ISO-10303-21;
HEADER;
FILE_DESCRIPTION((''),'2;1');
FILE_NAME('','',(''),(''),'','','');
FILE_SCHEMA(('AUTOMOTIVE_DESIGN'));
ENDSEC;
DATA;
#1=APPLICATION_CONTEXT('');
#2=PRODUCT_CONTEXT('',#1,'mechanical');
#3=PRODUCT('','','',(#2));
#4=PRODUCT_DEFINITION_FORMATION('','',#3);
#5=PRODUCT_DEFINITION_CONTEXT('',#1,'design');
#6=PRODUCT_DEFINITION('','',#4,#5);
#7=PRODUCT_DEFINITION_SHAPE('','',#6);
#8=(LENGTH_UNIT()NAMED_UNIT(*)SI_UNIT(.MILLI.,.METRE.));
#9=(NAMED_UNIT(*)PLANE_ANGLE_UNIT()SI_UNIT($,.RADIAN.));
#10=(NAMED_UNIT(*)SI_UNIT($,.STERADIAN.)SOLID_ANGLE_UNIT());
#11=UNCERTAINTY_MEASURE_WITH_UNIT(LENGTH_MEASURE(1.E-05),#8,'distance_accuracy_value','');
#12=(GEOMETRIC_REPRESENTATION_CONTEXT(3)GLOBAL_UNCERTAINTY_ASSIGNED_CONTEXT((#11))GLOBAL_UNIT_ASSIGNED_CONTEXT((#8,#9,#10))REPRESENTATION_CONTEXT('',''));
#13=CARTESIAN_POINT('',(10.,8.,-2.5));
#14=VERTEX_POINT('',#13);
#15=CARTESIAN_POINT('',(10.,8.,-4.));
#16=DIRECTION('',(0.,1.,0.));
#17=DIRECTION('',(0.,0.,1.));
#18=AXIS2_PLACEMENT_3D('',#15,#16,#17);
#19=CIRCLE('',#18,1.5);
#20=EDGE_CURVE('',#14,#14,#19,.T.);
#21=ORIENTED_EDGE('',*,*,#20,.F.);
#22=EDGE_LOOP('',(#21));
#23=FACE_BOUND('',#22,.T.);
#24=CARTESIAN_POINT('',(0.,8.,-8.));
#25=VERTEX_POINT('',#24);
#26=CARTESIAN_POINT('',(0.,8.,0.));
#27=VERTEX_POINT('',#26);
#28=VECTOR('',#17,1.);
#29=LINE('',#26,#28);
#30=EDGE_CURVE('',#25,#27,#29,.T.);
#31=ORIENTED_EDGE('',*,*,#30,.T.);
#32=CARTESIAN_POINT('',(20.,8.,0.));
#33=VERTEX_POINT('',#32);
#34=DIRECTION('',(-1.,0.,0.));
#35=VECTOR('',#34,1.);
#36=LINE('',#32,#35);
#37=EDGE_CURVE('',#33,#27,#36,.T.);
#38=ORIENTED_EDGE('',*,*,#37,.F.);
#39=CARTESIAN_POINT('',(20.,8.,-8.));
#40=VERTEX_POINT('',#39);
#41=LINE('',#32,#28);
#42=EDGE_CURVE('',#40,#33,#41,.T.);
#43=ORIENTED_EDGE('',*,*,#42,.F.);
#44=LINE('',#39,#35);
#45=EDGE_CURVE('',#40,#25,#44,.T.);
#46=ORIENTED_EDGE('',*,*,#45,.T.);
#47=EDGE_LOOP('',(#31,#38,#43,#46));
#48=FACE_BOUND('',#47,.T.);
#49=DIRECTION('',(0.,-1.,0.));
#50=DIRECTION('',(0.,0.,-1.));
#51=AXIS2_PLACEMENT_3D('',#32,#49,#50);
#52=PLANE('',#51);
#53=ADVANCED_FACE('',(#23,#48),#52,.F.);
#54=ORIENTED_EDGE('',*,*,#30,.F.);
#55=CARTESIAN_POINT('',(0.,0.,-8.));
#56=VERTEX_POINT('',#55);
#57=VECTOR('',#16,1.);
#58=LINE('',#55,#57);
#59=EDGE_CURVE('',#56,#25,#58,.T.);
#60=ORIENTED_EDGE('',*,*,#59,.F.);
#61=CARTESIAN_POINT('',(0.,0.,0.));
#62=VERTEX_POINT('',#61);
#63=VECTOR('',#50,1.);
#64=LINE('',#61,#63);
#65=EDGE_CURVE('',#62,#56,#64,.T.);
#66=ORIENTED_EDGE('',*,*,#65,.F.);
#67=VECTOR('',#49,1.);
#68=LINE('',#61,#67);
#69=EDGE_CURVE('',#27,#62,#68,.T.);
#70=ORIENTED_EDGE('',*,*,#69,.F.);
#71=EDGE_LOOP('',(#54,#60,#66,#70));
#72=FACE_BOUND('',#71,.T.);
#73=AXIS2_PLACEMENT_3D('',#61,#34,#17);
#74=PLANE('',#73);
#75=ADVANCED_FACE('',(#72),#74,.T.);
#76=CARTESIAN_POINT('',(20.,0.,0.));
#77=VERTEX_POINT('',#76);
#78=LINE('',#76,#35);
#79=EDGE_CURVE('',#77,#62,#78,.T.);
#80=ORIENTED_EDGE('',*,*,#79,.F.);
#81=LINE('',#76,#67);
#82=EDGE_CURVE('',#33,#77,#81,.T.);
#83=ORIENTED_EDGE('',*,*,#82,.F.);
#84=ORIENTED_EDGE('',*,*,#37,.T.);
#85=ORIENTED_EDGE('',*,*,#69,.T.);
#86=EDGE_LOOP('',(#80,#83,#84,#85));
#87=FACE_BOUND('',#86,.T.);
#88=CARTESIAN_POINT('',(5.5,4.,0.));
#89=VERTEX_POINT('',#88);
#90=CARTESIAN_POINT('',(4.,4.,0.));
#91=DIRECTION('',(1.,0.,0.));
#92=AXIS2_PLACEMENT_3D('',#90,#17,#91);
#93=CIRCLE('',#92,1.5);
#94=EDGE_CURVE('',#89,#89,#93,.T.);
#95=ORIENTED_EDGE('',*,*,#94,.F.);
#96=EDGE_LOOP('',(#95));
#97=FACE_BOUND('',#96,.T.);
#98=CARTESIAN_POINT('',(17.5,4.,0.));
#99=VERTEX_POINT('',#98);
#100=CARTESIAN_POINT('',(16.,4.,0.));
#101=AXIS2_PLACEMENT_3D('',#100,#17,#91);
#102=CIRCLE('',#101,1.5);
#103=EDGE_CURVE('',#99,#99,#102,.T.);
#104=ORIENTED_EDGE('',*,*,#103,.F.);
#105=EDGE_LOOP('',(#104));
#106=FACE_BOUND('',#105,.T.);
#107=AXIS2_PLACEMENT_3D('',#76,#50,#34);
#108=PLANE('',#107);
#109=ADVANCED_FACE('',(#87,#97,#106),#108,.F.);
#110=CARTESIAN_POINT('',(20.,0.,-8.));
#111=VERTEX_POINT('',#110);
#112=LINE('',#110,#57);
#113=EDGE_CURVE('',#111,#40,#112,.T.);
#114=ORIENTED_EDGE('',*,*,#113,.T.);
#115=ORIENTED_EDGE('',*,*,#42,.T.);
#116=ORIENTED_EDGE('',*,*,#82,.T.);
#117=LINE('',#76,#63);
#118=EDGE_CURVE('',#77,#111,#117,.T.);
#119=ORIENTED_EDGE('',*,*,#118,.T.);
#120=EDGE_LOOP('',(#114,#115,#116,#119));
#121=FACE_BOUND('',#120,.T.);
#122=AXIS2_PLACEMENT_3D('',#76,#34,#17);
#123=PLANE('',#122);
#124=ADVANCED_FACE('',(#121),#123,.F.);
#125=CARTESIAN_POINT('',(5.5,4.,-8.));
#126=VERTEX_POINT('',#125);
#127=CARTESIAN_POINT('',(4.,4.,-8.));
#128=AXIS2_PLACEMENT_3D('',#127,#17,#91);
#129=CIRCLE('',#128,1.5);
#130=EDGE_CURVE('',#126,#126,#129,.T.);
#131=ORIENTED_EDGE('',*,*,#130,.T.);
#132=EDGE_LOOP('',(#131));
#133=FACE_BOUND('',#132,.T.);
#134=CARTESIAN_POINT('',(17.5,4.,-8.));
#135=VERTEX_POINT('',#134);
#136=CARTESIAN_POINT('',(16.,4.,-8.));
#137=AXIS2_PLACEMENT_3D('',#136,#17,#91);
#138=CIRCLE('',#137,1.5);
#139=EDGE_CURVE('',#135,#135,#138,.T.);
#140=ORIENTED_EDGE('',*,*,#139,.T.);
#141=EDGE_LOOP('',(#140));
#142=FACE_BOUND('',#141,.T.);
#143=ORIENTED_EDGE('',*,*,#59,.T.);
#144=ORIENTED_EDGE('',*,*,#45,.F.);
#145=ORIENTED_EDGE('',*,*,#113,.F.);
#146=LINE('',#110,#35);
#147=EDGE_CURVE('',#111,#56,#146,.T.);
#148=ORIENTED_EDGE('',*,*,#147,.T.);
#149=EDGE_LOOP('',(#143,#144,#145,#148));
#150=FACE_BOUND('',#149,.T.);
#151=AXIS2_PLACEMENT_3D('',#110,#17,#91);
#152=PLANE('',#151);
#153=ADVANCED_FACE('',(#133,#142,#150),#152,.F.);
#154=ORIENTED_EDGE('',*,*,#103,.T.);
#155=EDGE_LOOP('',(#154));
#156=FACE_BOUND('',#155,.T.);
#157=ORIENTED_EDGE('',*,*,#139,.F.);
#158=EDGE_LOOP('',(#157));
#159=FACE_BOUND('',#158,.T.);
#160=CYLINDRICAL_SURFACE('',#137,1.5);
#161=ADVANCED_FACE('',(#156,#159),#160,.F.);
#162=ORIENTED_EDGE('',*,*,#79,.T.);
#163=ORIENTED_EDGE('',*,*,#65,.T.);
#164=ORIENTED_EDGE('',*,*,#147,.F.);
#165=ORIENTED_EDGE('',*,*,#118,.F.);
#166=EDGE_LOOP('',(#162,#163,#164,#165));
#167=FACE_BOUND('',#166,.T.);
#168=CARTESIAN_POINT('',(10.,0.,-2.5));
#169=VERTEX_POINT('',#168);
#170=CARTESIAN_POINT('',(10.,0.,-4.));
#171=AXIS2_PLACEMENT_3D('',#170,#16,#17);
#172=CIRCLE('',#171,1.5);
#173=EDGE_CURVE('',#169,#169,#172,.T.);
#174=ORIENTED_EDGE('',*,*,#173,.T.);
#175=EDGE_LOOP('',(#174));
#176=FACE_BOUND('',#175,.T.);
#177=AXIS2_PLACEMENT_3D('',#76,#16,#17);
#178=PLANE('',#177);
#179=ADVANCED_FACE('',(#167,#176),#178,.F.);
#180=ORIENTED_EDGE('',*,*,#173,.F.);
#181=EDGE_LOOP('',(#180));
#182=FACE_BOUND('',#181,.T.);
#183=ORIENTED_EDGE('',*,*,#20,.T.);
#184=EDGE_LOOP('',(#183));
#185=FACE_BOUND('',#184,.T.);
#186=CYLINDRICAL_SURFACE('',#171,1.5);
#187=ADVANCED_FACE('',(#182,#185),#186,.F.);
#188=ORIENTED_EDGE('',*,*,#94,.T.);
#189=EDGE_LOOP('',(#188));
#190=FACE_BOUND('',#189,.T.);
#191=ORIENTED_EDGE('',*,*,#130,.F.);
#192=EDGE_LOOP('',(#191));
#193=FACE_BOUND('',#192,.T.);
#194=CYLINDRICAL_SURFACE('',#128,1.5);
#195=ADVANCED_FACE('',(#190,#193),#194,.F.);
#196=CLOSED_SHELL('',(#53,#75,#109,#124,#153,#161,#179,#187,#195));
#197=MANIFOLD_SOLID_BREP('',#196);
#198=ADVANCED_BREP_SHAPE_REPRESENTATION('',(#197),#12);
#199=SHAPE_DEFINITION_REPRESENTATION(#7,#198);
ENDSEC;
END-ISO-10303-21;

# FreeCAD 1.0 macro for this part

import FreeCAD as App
import Part
import Sketcher

doc = App.newDocument("Part")
params = doc.addObject("Spreadsheet::Sheet", "Params")
for row, (alias, value) in enumerate([
    ("sketch1_width", "8 mm"),
    ("pad1_length", "20 mm"),
    ("sketch2_diameter", "3 mm"),
    ("sketch3_diameter", "3 mm"),
], start=1):
    params.set(f"A{row}", alias)
    params.set(f"B{row}", "=" + value)
    params.setAlias(f"B{row}", alias)

body = doc.addObject("PartDesign::Body", "Body")

sketch1 = body.newObject("Sketcher::SketchObject", "Sketch")
sketch1.AttachmentSupport = (doc.getObject("YZ_Plane"), [""])
sketch1.MapMode = "FlatFace"
sketch1.addGeometry([
    Part.LineSegment(App.Vector(8, 0, 0), App.Vector(0, 0, 0)),
    Part.LineSegment(App.Vector(0, 0, 0), App.Vector(0, -8, 0)),
    Part.LineSegment(App.Vector(0, -8, 0), App.Vector(8, -8, 0)),
    Part.LineSegment(App.Vector(8, -8, 0), App.Vector(8, 0, 0)),
], False)
sketch1.addConstraint([
    Sketcher.Constraint("Coincident", 0, 2, 1, 1),
    Sketcher.Constraint("Coincident", 1, 2, 2, 1),
    Sketcher.Constraint("Coincident", 2, 2, 3, 1),
    Sketcher.Constraint("Coincident", 3, 2, 0, 1),
    Sketcher.Constraint("Horizontal", 0),
    Sketcher.Constraint("Vertical", 1),
    Sketcher.Constraint("Horizontal", 2),
    Sketcher.Constraint("Vertical", 3),
    Sketcher.Constraint("Coincident", 0, 2, -1, 1),
    Sketcher.Constraint("Equal", 2, 1),
    Sketcher.Constraint("DistanceX", 0, 2, 0, 1, 8.0),
])
sketch1.setExpression("Constraints[10]", "Params.sketch1_width")
pad1 = body.newObject("PartDesign::Pad", "Pad")
pad1.Profile = sketch1
pad1.setExpression("Length", "Params.pad1_length")

sketch2 = body.newObject("Sketcher::SketchObject", "Sketch001")
sketch2.AttachmentSupport = (doc.getObject("XY_Plane"), [""])
sketch2.MapMode = "FlatFace"
sketch2.addGeometry([
    Part.Circle(App.Vector(4, 4, 0), App.Vector(0, 0, 1), 1.5),
    Part.Circle(App.Vector(16, 4, 0), App.Vector(0, 0, 1), 1.5),
], False)
sketch2.addConstraint([
    Sketcher.Constraint("Equal", 0, 1),
    Sketcher.Constraint("Horizontal", 0, 3, 1, 3),
    Sketcher.Constraint("Diameter", 0, 3.0),
    Sketcher.Constraint("DistanceX", -1, 1, 0, 3, 4.0),
    Sketcher.Constraint("DistanceY", -1, 1, 0, 3, 4.0),
    Sketcher.Constraint("DistanceX", -1, 1, 1, 3, 16.0),
])
sketch2.setExpression("Constraints[2]", "Params.sketch2_diameter")
pocket1 = body.newObject("PartDesign::Pocket", "Pocket")
pocket1.Profile = sketch2
pocket1.Type = "ThroughAll"

sketch3 = body.newObject("Sketcher::SketchObject", "Sketch002")
sketch3.AttachmentSupport = (doc.getObject("XZ_Plane"), [""])
sketch3.MapMode = "FlatFace"
sketch3.AttachmentOffset = App.Placement(App.Vector(0, 0, -8), App.Rotation())
sketch3.addGeometry(Part.Circle(App.Vector(10, -4, 0), App.Vector(0, 0, 1), 1.5), False)
sketch3.addConstraint([
    Sketcher.Constraint("Diameter", 0, 3.0),
    Sketcher.Constraint("DistanceX", -1, 1, 0, 3, 10.0),
    Sketcher.Constraint("DistanceY", 0, 3, -1, 1, 4.0),
])
sketch3.setExpression("Constraints[0]", "Params.sketch3_diameter")
pocket2 = body.newObject("PartDesign::Pocket", "Pocket001")
pocket2.Profile = sketch3
pocket2.Type = "ThroughAll"
pocket2.Reversed = True

doc.recompute()
